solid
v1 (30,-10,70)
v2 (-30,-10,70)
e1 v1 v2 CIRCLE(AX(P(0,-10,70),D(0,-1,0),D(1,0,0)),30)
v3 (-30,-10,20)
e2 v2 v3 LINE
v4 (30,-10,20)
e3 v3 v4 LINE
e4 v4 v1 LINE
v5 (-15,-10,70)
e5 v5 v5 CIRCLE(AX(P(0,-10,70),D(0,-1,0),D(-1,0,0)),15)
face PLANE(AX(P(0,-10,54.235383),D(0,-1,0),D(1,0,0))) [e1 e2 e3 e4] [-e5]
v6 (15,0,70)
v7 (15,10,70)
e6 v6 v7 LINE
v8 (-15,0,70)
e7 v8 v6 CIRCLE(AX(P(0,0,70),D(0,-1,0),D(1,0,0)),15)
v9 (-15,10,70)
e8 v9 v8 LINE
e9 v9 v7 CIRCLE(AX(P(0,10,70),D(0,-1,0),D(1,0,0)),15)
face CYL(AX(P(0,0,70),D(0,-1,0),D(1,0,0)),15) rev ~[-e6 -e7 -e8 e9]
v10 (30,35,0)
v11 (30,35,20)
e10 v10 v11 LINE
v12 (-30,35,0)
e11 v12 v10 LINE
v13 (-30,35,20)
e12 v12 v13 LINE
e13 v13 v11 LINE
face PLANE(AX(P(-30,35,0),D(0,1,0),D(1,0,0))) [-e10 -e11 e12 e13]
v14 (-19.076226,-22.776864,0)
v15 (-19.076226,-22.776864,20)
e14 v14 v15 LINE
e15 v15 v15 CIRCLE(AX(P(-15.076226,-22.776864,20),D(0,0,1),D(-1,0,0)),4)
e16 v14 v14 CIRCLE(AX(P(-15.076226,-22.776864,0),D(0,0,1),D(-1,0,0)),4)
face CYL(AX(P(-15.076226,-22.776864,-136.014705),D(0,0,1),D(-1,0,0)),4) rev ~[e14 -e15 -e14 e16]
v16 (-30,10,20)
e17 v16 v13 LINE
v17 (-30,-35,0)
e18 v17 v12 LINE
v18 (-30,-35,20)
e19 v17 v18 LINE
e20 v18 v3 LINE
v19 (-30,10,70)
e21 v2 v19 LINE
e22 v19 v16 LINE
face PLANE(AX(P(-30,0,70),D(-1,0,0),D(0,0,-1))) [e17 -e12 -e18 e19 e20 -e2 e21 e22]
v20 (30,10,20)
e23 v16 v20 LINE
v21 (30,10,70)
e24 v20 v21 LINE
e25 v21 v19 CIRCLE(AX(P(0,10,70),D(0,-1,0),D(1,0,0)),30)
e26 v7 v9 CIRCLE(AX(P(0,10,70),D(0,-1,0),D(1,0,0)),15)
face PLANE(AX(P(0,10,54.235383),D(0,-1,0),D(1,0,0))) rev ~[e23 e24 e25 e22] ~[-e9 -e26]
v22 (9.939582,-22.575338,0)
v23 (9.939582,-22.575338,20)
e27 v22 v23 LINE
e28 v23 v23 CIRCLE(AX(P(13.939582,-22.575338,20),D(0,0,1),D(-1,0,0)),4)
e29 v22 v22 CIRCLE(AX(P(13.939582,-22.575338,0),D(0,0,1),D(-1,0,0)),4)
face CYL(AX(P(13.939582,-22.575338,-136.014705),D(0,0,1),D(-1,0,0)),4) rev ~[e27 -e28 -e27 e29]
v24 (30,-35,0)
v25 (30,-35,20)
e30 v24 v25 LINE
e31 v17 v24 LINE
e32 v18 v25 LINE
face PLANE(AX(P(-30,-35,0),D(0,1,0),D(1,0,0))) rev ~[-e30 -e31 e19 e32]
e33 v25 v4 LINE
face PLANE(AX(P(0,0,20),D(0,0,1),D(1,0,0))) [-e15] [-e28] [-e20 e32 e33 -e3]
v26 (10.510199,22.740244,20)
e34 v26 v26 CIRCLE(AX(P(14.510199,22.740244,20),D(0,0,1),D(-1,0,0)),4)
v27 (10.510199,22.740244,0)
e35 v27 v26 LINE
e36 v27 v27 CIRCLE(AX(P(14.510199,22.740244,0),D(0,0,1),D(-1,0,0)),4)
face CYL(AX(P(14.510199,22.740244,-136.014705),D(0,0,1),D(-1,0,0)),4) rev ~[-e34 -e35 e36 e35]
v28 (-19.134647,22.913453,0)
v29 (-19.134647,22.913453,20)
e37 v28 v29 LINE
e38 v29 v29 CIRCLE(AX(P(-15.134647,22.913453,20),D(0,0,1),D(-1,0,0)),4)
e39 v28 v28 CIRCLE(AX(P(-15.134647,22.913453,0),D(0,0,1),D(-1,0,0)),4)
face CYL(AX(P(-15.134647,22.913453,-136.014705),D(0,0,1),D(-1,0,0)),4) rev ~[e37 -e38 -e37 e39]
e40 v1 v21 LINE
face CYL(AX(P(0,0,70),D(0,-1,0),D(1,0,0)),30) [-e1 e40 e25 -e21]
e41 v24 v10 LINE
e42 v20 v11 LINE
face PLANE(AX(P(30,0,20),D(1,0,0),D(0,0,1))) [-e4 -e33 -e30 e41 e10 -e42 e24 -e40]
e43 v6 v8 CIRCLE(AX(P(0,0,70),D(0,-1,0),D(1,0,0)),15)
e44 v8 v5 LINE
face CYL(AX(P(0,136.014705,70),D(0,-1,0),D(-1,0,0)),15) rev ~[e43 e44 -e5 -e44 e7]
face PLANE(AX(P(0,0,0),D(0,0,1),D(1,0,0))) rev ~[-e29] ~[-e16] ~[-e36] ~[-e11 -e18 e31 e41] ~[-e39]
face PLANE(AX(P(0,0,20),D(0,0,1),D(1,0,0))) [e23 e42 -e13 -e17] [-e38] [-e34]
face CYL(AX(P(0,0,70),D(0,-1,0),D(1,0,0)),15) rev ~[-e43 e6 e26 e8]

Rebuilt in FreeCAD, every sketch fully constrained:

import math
import FreeCAD as App
import Part
import Sketcher

V = App.Vector
Q = App.Units.Quantity


def add_polygon(sketch, points):
    """Adds a closed chain of lines whose ends are joined by coincident constraints."""
    first, n = sketch.GeometryCount, len(points)
    for a, b in zip(points, points[1:] + points[:1]):
        sketch.addGeometry(Part.LineSegment(App.Vector(*a, 0), App.Vector(*b, 0)), False)
    for i in range(n):
        sketch.addConstraint(Sketcher.Constraint("Coincident", first + i, 2, first + (i + 1) % n, 1))

doc = App.newDocument("Part")
params = doc.addObject("Spreadsheet::Sheet", "Params")
for row, (alias, value) in enumerate([
    ("sketch1_width", "60 mm"),
    ("sketch1_height", "70 mm"),
    ("pad1_length", "20 mm"),
    ("sketch2_radius", "30 mm"),
    ("sketch2_height", "50 mm"),
    ("pad2_length", "10 mm"),
    ("pad2_length2", "10 mm"),
    ("sketch3_diameter", "30 mm"),
    ("sketch4_diameter", "30 mm"),
    ("hole_diameter", "30 mm"),
    ("sketch5_diameter", "8 mm"),
    ("hole2_diameter", "8 mm"),
    ("sketch6_diameter", "8 mm"),
    ("hole3_diameter", "8 mm"),
    ("sketch7_diameter", "8 mm"),
    ("hole4_diameter", "8 mm"),
    ("sketch8_diameter", "8 mm"),
    ("hole5_diameter", "8 mm"),
], start=1):
    params.set(f"A{row}", alias)
    params.set(f"B{row}", "=" + value)
    params.setAlias(f"B{row}", alias)

body = doc.addObject("PartDesign::Body", "Body")

# Sketch on XY plane
sketch1 = doc.addObject("Sketcher::SketchObject", "Sketch")
body.addObject(sketch1)
sketch1.AttachmentSupport = (doc.XY_Plane, [""])
sketch1.MapMode = "FlatFace"
add_polygon(sketch1, [(-30, 35), (-30, -35), (30, -35), (30, 35)])  # lines 0-3
sketch1.addConstraint(Sketcher.Constraint("Vertical", 0))
sketch1.addConstraint(Sketcher.Constraint("Horizontal", 1))
sketch1.addConstraint(Sketcher.Constraint("Vertical", 2))
sketch1.addConstraint(Sketcher.Constraint("Horizontal", 3))
sketch1.addConstraint(Sketcher.Constraint("Symmetric", 0, 2, 2, 2, -1, 1))
sketch1.addConstraint(Sketcher.Constraint("DistanceX", 1, 1, 1, 2, Q("60 mm")))
sketch1.addConstraint(Sketcher.Constraint("DistanceY", 0, 2, 0, 1, Q("70 mm")))
sketch1.setExpression("Constraints[9]", "Params.sketch1_width")
sketch1.setExpression("Constraints[10]", "Params.sketch1_height")
pad1 = doc.addObject("PartDesign::Pad", "Pad")
body.addObject(pad1)
pad1.Profile = sketch1
pad1.setExpression("Length", "Params.pad1_length")

# Sketch on XZ plane
sketch2 = doc.addObject("Sketcher::SketchObject", "Sketch001")
body.addObject(sketch2)
sketch2.AttachmentSupport = (doc.XZ_Plane, [""])
sketch2.MapMode = "FlatFace"
sketch2.addGeometry(Part.LineSegment(V(-30, 70, 0), V(-30, 20, 0)), False)
sketch2.addGeometry(Part.LineSegment(V(-30, 20, 0), V(30, 20, 0)), False)
sketch2.addGeometry(Part.LineSegment(V(30, 20, 0), V(30, 70, 0)), False)
sketch2.addGeometry(Part.ArcOfCircle(Part.Circle(V(0, 70, 0), V(0, 0, 1), 30), math.radians(0), math.radians(180)), False)
sketch2.addConstraint(Sketcher.Constraint("Coincident", 0, 2, 1, 1))
sketch2.addConstraint(Sketcher.Constraint("Coincident", 1, 2, 2, 1))
sketch2.addConstraint(Sketcher.Constraint("Tangent", 2, 2, 3, 1))
sketch2.addConstraint(Sketcher.Constraint("Tangent", 3, 2, 0, 1))
sketch2.addConstraint(Sketcher.Constraint("Vertical", 0))
sketch2.addConstraint(Sketcher.Constraint("Horizontal", 1))
sketch2.addConstraint(Sketcher.Constraint("Vertical", 2))
sketch2.addConstraint(Sketcher.Constraint("PointOnObject", 3, 3, -2))
sketch2.addConstraint(Sketcher.Constraint("Radius", 3, Q("30 mm")))
sketch2.addConstraint(Sketcher.Constraint("DistanceY", 0, 2, 0, 1, Q("50 mm")))
sketch2.addConstraint(Sketcher.Constraint("DistanceY", -1, 1, 3, 3, Q("70 mm")))
sketch2.setExpression("Constraints[8]", "Params.sketch2_radius")
sketch2.setExpression("Constraints[9]", "Params.sketch2_height")
pad2 = doc.addObject("PartDesign::Pad", "Pad001")
body.addObject(pad2)
pad2.Profile = sketch2
pad2.Type = "TwoLengths"
pad2.setExpression("Length", "Params.pad2_length")
pad2.setExpression("Length2", "Params.pad2_length2")

# Sketch on XZ plane
sketch3 = doc.addObject("Sketcher::SketchObject", "Sketch002")
body.addObject(sketch3)
sketch3.AttachmentSupport = (doc.XZ_Plane, [""])
sketch3.MapMode = "FlatFace"
sketch3.addGeometry(Part.Circle(V(0, 70, 0), V(0, 0, 1), 15), False)
sketch3.addConstraint(Sketcher.Constraint("PointOnObject", 0, 3, -2))
sketch3.addConstraint(Sketcher.Constraint("Diameter", 0, Q("30 mm")))
sketch3.addConstraint(Sketcher.Constraint("DistanceY", -1, 1, 0, 3, Q("70 mm")))
sketch3.setExpression("Constraints[1]", "Params.sketch3_diameter")
pocket1 = doc.addObject("PartDesign::Pocket", "Pocket")
body.addObject(pocket1)
pocket1.Profile = sketch3
pocket1.Type = "ThroughAll"

# Sketch on XZ plane
sketch4 = doc.addObject("Sketcher::SketchObject", "Sketch003")
body.addObject(sketch4)
sketch4.AttachmentSupport = (doc.XZ_Plane, [""])
sketch4.MapMode = "FlatFace"
sketch4.addGeometry(Part.Circle(V(0, 70, 0), V(0, 0, 1), 15), False)
sketch4.addConstraint(Sketcher.Constraint("PointOnObject", 0, 3, -2))
sketch4.addConstraint(Sketcher.Constraint("Diameter", 0, Q("30 mm")))
sketch4.addConstraint(Sketcher.Constraint("DistanceY", -1, 1, 0, 3, Q("70 mm")))
sketch4.setExpression("Constraints[1]", "Params.sketch4_diameter")
doc.recompute()
hole = doc.addObject("PartDesign::Hole", "Hole")
body.addObject(hole)
hole.Profile = sketch4
hole.ThreadType = "None"
hole.setExpression("Diameter", "Params.hole_diameter")
hole.DepthType = "ThroughAll"
hole.Reversed = True

# Sketch on XY plane
sketch5 = doc.addObject("Sketcher::SketchObject", "Sketch004")
body.addObject(sketch5)
sketch5.AttachmentSupport = (doc.XY_Plane, [""])
sketch5.MapMode = "FlatFace"
sketch5.addGeometry(Part.Circle(V(-15.1, -22.8, 0), V(0, 0, 1), 4), False)
sketch5.addConstraint(Sketcher.Constraint("Diameter", 0, Q("8 mm")))
sketch5.addConstraint(Sketcher.Constraint("DistanceX", 0, 3, -1, 1, Q("15.076226 mm")))
sketch5.addConstraint(Sketcher.Constraint("DistanceY", 0, 3, -1, 1, Q("22.776864 mm")))
sketch5.setExpression("Constraints[0]", "Params.sketch5_diameter")
doc.recompute()
hole2 = doc.addObject("PartDesign::Hole", "Hole001")
body.addObject(hole2)
hole2.Profile = sketch5
hole2.ThreadType = "None"
hole2.setExpression("Diameter", "Params.hole2_diameter")
hole2.DepthType = "ThroughAll"
hole2.Reversed = True

# Sketch on XY plane
sketch6 = doc.addObject("Sketcher::SketchObject", "Sketch005")
body.addObject(sketch6)
sketch6.AttachmentSupport = (doc.XY_Plane, [""])
sketch6.MapMode = "FlatFace"
sketch6.addGeometry(Part.Circle(V(13.9, -22.6, 0), V(0, 0, 1), 4), False)
sketch6.addConstraint(Sketcher.Constraint("Diameter", 0, Q("8 mm")))
sketch6.addConstraint(Sketcher.Constraint("DistanceX", -1, 1, 0, 3, Q("13.939582 mm")))
sketch6.addConstraint(Sketcher.Constraint("DistanceY", 0, 3, -1, 1, Q("22.575338 mm")))
sketch6.setExpression("Constraints[0]", "Params.sketch6_diameter")
doc.recompute()
hole3 = doc.addObject("PartDesign::Hole", "Hole002")
body.addObject(hole3)
hole3.Profile = sketch6
hole3.ThreadType = "None"
hole3.setExpression("Diameter", "Params.hole3_diameter")
hole3.DepthType = "ThroughAll"
hole3.Reversed = True

# Sketch on XY plane
sketch7 = doc.addObject("Sketcher::SketchObject", "Sketch006")
body.addObject(sketch7)
sketch7.AttachmentSupport = (doc.XY_Plane, [""])
sketch7.MapMode = "FlatFace"
sketch7.addGeometry(Part.Circle(V(14.5, 22.7, 0), V(0, 0, 1), 4), False)
sketch7.addConstraint(Sketcher.Constraint("Diameter", 0, Q("8 mm")))
sketch7.addConstraint(Sketcher.Constraint("DistanceX", -1, 1, 0, 3, Q("14.510199 mm")))
sketch7.addConstraint(Sketcher.Constraint("DistanceY", -1, 1, 0, 3, Q("22.740244 mm")))
sketch7.setExpression("Constraints[0]", "Params.sketch7_diameter")
doc.recompute()
hole4 = doc.addObject("PartDesign::Hole", "Hole003")
body.addObject(hole4)
hole4.Profile = sketch7
hole4.ThreadType = "None"
hole4.setExpression("Diameter", "Params.hole4_diameter")
hole4.DepthType = "ThroughAll"
hole4.Reversed = True

# Sketch on XY plane
sketch8 = doc.addObject("Sketcher::SketchObject", "Sketch007")
body.addObject(sketch8)
sketch8.AttachmentSupport = (doc.XY_Plane, [""])
sketch8.MapMode = "FlatFace"
sketch8.addGeometry(Part.Circle(V(-15.1, 22.9, 0), V(0, 0, 1), 4), False)
sketch8.addConstraint(Sketcher.Constraint("Diameter", 0, Q("8 mm")))
sketch8.addConstraint(Sketcher.Constraint("DistanceX", 0, 3, -1, 1, Q("15.134647 mm")))
sketch8.addConstraint(Sketcher.Constraint("DistanceY", -1, 1, 0, 3, Q("22.913453 mm")))
sketch8.setExpression("Constraints[0]", "Params.sketch8_diameter")
doc.recompute()
hole5 = doc.addObject("PartDesign::Hole", "Hole004")
body.addObject(hole5)
hole5.Profile = sketch8
hole5.ThreadType = "None"
hole5.setExpression("Diameter", "Params.hole5_diameter")
hole5.DepthType = "ThroughAll"
hole5.Reversed = True

doc.recompute()
